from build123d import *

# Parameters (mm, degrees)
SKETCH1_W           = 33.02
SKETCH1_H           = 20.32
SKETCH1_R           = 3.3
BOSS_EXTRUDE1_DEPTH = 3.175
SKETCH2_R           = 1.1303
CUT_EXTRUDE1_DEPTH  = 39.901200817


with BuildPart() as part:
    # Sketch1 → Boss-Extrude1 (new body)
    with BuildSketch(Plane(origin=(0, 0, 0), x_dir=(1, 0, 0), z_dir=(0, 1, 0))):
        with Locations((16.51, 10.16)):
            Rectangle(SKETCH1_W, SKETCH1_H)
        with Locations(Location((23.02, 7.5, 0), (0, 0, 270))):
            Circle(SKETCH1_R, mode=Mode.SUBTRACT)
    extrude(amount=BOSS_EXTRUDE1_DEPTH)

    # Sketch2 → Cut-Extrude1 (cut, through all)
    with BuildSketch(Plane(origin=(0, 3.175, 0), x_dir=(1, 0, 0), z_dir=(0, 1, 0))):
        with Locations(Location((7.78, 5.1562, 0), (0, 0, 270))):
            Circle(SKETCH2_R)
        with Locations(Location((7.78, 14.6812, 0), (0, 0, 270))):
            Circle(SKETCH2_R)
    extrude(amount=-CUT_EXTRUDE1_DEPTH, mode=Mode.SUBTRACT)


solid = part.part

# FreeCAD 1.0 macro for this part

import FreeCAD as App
import Part
import Sketcher
from FreeCAD import Vector
Q = App.Units.Quantity

doc = App.newDocument("Part")
params = doc.addObject("Spreadsheet::Sheet", "Params")
for row, (alias, value) in enumerate([
    ("sketch1_width", "1.3 in"),
    ("sketch1_height", "0.8 in"),
    ("pad1_length", "0.125 in"),
    ("sketch2_diameter", "0.089 in"),
], start=1):
    params.set(f"A{row}", alias)
    params.set(f"B{row}", "=" + value)
    params.setAlias(f"B{row}", alias)

body = doc.addObject("PartDesign::Body", "Body")

sketch1 = body.newObject("Sketcher::SketchObject", "Sketch")
sketch1.AttachmentSupport = (doc.getObject("XZ_Plane"), [""])
sketch1.MapMode = "FlatFace"
sketch1.addGeometry(Part.LineSegment(Vector(0, -20.3, 0), Vector(0, 0, 0)), False)
sketch1.addGeometry(Part.LineSegment(Vector(0, 0, 0), Vector(33, 0, 0)), False)
sketch1.addGeometry(Part.LineSegment(Vector(33, 0, 0), Vector(33, -20.3, 0)), False)
sketch1.addGeometry(Part.LineSegment(Vector(33, -20.3, 0), Vector(0, -20.3, 0)), False)
sketch1.addGeometry(Part.Circle(Vector(23, -7.5, 0), Vector(0, 0, 1), 3.3), False)
sketch1.addConstraint(Sketcher.Constraint("Coincident", 0, 2, 1, 1))
sketch1.addConstraint(Sketcher.Constraint("Coincident", 1, 2, 2, 1))
sketch1.addConstraint(Sketcher.Constraint("Coincident", 2, 2, 3, 1))
sketch1.addConstraint(Sketcher.Constraint("Coincident", 3, 2, 0, 1))
sketch1.addConstraint(Sketcher.Constraint("Vertical", 0))
sketch1.addConstraint(Sketcher.Constraint("Horizontal", 1))
sketch1.addConstraint(Sketcher.Constraint("Vertical", 2))
sketch1.addConstraint(Sketcher.Constraint("Horizontal", 3))
sketch1.addConstraint(Sketcher.Constraint("Coincident", 0, 2, -1, 1))
sketch1.addConstraint(Sketcher.Constraint("DistanceX", 1, 1, 1, 2, Q("1.3 in")))
sketch1.addConstraint(Sketcher.Constraint("DistanceY", 0, 1, 0, 2, Q("0.8 in")))
sketch1.addConstraint(Sketcher.Constraint("Diameter", 4, Q("6.6 mm")))
sketch1.addConstraint(Sketcher.Constraint("DistanceX", -1, 1, 4, 3, Q("23.02 mm")))
sketch1.addConstraint(Sketcher.Constraint("DistanceY", 4, 3, -1, 1, Q("7.5 mm")))
sketch1.setExpression("Constraints[9]", "Params.sketch1_width")
sketch1.setExpression("Constraints[10]", "Params.sketch1_height")
pad1 = body.newObject("PartDesign::Pad", "Pad")
pad1.Profile = sketch1
pad1.setExpression("Length", "Params.pad1_length")
pad1.Reversed = True

sketch2 = body.newObject("Sketcher::SketchObject", "Sketch001")
sketch2.AttachmentSupport = (doc.getObject("XZ_Plane"), [""])
sketch2.MapMode = "FlatFace"
sketch2.AttachmentOffset = App.Placement(Vector(0, 0, -0.125 * 25.4), App.Rotation())
sketch2.addGeometry(Part.Circle(Vector(7.8, -5.2, 0), Vector(0, 0, 1), 1.1), False)
sketch2.addGeometry(Part.Circle(Vector(7.8, -14.7, 0), Vector(0, 0, 1), 1.1), False)
sketch2.addConstraint(Sketcher.Constraint("Equal", 0, 1))
sketch2.addConstraint(Sketcher.Constraint("Vertical", 0, 3, 1, 3))
sketch2.addConstraint(Sketcher.Constraint("Diameter", 0, Q("0.089 in")))
sketch2.addConstraint(Sketcher.Constraint("DistanceY", 0, 3, -1, 1, Q("0.203 in")))
sketch2.addConstraint(Sketcher.Constraint("DistanceY", 1, 3, -1, 1, Q("0.578 in")))
sketch2.addConstraint(Sketcher.Constraint("DistanceX", -1, 1, 0, 3, Q("7.78 mm")))
sketch2.setExpression("Constraints[2]", "Params.sketch2_diameter")
pocket1 = body.newObject("PartDesign::Pocket", "Pocket")
pocket1.Profile = sketch2
pocket1.Type = "ThroughAll"
pocket1.Reversed = True

doc.recompute()
